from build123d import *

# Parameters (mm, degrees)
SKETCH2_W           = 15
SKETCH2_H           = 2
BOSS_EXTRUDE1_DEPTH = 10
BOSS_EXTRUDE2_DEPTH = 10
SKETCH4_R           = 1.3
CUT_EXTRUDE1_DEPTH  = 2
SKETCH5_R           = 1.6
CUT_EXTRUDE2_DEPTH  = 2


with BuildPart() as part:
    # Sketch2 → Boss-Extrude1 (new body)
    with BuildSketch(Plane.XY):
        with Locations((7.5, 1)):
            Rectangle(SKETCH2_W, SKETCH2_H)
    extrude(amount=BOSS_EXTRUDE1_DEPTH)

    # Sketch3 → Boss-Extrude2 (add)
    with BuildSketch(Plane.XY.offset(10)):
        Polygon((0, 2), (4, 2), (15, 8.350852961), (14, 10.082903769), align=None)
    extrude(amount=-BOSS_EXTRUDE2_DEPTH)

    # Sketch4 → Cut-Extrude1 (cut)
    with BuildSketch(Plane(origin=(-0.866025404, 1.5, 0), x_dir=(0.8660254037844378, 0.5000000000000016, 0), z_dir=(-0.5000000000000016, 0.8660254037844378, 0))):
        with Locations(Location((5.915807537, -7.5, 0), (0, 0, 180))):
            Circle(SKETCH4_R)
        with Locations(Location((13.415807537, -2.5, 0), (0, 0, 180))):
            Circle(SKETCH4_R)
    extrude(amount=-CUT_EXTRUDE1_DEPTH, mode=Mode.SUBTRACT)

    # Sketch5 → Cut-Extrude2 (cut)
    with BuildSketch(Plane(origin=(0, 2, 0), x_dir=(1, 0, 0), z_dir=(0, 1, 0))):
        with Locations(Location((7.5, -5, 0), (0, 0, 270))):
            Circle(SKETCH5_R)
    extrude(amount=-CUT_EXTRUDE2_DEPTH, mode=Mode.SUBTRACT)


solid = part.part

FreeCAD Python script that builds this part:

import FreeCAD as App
import Part
import Sketcher

V = App.Vector
Q = App.Units.Quantity


def add_polygon(sketch, points):
    """Adds a closed chain of lines whose ends are joined by coincident constraints."""
    first, n = sketch.GeometryCount, len(points)
    for a, b in zip(points, points[1:] + points[:1]):
        sketch.addGeometry(Part.LineSegment(App.Vector(*a, 0), App.Vector(*b, 0)), False)
    for i in range(n):
        sketch.addConstraint(Sketcher.Constraint("Coincident", first + i, 2, first + (i + 1) % n, 1))

doc = App.newDocument("Part")
body = doc.addObject("PartDesign::Body", "Body")

sketch1 = body.newObject("Sketcher::SketchObject", "Sketch")
sketch1.AttachmentSupport = (doc.getObject("XY_Plane"), [""])
sketch1.MapMode = "FlatFace"
add_polygon(sketch1, [(0, 2), (0, 0), (15, 0), (15, 2)])
sketch1.addConstraint(Sketcher.Constraint("Vertical", 0))
sketch1.addConstraint(Sketcher.Constraint("Horizontal", 1))
sketch1.addConstraint(Sketcher.Constraint("Vertical", 2))
sketch1.addConstraint(Sketcher.Constraint("Horizontal", 3))
sketch1.addConstraint(Sketcher.Constraint("Coincident", 0, 2, -1, 1))
sketch1.addConstraint(Sketcher.Constraint("DistanceX", 1, 1, 1, 2, Q("15 mm")))
sketch1.addConstraint(Sketcher.Constraint("DistanceY", 0, 2, 0, 1, Q("2 mm")))
pad1 = body.newObject("PartDesign::Pad", "Pad")
pad1.Profile = sketch1
pad1.Length = 10

sketch2 = body.newObject("Sketcher::SketchObject", "Sketch001")
sketch2.AttachmentSupport = (doc.getObject("XY_Plane"), [""])
sketch2.MapMode = "FlatFace"
sketch2.AttachmentOffset = App.Placement(V(0, 0, 10), App.Rotation())
add_polygon(sketch2, [(0, 2), (4, 2), (15, 8.4), (14, 10.1)])
sketch2.addConstraint(Sketcher.Constraint("Horizontal", 0))
sketch2.addConstraint(Sketcher.Constraint("PointOnObject", 3, 2, -2))
sketch2.addConstraint(Sketcher.Constraint("Perpendicular", 1, 2))
sketch2.addConstraint(Sketcher.Constraint("Perpendicular", 2, 3))
sketch2.addConstraint(Sketcher.Constraint("DistanceX", 0, 1, 0, 2, Q("4 mm")))
sketch2.addConstraint(Sketcher.Constraint("Angle", 1, Q("30 deg")))
sketch2.addConstraint(Sketcher.Constraint("DistanceY", -1, 1, 0, 2, Q("2 mm")))
sketch2.addConstraint(Sketcher.Constraint("DistanceX", -1, 1, 1, 2, Q("15 mm")))
pad2 = body.newObject("PartDesign::Pad", "Pad001")
pad2.Profile = sketch2
pad2.Length = 10
pad2.Reversed = True

sketch3 = body.newObject("Sketcher::SketchObject", "Sketch002")
sketch3.Placement = App.Placement(V(-0.866025, 1.5, 0), App.Rotation(V(0.866025404, 0.5, 0), V(0, 0, -1), V(-0.5, 0.866025404, 0), "ZXY"))
sketch3.addGeometry(Part.Circle(V(5.9, -7.5, 0), V(0, 0, 1), 1.3), False)
sketch3.addGeometry(Part.Circle(V(13.4, -2.5, 0), V(0, 0, 1), 1.3), False)
sketch3.addConstraint(Sketcher.Constraint("Equal", 0, 1))
sketch3.addConstraint(Sketcher.Constraint("Diameter", 0, Q("2.6 mm")))
sketch3.addConstraint(Sketcher.Constraint("DistanceY", 0, 3, 1, 3, Q("5 mm")))
sketch3.addConstraint(Sketcher.Constraint("DistanceY", 0, 3, -1, 1, Q("7.5 mm")))
sketch3.addConstraint(Sketcher.Constraint("DistanceX", 0, 3, 1, 3, Q("7.5 mm")))
sketch3.addConstraint(Sketcher.Constraint("DistanceX", -1, 1, 0, 3, Q("5.915808 mm")))
pocket1 = body.newObject("PartDesign::Pocket", "Pocket")
pocket1.Profile = sketch3
pocket1.Length = 2

sketch4 = body.newObject("Sketcher::SketchObject", "Sketch003")
sketch4.AttachmentSupport = (doc.getObject("XZ_Plane"), [""])
sketch4.MapMode = "FlatFace"
sketch4.AttachmentOffset = App.Placement(V(0, 0, -2), App.Rotation())
sketch4.addGeometry(Part.Circle(V(7.5, 5, 0), V(0, 0, 1), 1.6), False)
sketch4.addConstraint(Sketcher.Constraint("Diameter", 0, Q("3.2 mm")))
sketch4.addConstraint(Sketcher.Constraint("DistanceY", -1, 1, 0, 3, Q("5 mm")))
sketch4.addConstraint(Sketcher.Constraint("DistanceX", -1, 1, 0, 3, Q("7.5 mm")))
pocket2 = body.newObject("PartDesign::Pocket", "Pocket001")
pocket2.Profile = sketch4
pocket2.Length = 2
pocket2.Reversed = True

doc.recompute()
